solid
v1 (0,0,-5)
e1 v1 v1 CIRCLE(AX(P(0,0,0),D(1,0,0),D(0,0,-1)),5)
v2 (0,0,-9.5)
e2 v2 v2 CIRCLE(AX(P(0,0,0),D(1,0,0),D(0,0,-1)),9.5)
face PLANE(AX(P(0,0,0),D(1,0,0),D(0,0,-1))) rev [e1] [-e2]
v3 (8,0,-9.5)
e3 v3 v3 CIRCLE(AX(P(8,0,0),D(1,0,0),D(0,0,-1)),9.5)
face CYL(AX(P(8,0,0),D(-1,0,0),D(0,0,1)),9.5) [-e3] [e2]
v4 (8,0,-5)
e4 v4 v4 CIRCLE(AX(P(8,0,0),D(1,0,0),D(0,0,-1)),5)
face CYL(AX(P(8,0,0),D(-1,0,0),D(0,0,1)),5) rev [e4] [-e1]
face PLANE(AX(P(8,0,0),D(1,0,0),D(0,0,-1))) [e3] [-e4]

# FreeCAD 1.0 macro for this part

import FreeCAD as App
import Part
import Sketcher

doc = App.newDocument("Part")
body = doc.addObject("PartDesign::Body", "Body")

# Sketch on YZ plane
sketch1 = body.newObject("Sketcher::SketchObject", "Sketch")
sketch1.AttachmentSupport = (doc.getObject("YZ_Plane"), [""])
sketch1.MapMode = "FlatFace"
sketch1.addGeometry([
    Part.Circle(App.Vector(0, 0, 0), App.Vector(0, 0, 1), 10),
    Part.Circle(App.Vector(0, 0, 0), App.Vector(0, 0, 1), 5),
], False)
sketch1.addConstraint([
    Sketcher.Constraint("Coincident", 0, 3, -1, 1),
    Sketcher.Constraint("Coincident", 1, 3, -1, 1),
    Sketcher.Constraint("Diameter", 0, 19.0),
    Sketcher.Constraint("Diameter", 1, 10.0),
])
pad1 = body.newObject("PartDesign::Pad", "Pad")
pad1.Profile = sketch1
pad1.Length = 8

doc.recompute()
